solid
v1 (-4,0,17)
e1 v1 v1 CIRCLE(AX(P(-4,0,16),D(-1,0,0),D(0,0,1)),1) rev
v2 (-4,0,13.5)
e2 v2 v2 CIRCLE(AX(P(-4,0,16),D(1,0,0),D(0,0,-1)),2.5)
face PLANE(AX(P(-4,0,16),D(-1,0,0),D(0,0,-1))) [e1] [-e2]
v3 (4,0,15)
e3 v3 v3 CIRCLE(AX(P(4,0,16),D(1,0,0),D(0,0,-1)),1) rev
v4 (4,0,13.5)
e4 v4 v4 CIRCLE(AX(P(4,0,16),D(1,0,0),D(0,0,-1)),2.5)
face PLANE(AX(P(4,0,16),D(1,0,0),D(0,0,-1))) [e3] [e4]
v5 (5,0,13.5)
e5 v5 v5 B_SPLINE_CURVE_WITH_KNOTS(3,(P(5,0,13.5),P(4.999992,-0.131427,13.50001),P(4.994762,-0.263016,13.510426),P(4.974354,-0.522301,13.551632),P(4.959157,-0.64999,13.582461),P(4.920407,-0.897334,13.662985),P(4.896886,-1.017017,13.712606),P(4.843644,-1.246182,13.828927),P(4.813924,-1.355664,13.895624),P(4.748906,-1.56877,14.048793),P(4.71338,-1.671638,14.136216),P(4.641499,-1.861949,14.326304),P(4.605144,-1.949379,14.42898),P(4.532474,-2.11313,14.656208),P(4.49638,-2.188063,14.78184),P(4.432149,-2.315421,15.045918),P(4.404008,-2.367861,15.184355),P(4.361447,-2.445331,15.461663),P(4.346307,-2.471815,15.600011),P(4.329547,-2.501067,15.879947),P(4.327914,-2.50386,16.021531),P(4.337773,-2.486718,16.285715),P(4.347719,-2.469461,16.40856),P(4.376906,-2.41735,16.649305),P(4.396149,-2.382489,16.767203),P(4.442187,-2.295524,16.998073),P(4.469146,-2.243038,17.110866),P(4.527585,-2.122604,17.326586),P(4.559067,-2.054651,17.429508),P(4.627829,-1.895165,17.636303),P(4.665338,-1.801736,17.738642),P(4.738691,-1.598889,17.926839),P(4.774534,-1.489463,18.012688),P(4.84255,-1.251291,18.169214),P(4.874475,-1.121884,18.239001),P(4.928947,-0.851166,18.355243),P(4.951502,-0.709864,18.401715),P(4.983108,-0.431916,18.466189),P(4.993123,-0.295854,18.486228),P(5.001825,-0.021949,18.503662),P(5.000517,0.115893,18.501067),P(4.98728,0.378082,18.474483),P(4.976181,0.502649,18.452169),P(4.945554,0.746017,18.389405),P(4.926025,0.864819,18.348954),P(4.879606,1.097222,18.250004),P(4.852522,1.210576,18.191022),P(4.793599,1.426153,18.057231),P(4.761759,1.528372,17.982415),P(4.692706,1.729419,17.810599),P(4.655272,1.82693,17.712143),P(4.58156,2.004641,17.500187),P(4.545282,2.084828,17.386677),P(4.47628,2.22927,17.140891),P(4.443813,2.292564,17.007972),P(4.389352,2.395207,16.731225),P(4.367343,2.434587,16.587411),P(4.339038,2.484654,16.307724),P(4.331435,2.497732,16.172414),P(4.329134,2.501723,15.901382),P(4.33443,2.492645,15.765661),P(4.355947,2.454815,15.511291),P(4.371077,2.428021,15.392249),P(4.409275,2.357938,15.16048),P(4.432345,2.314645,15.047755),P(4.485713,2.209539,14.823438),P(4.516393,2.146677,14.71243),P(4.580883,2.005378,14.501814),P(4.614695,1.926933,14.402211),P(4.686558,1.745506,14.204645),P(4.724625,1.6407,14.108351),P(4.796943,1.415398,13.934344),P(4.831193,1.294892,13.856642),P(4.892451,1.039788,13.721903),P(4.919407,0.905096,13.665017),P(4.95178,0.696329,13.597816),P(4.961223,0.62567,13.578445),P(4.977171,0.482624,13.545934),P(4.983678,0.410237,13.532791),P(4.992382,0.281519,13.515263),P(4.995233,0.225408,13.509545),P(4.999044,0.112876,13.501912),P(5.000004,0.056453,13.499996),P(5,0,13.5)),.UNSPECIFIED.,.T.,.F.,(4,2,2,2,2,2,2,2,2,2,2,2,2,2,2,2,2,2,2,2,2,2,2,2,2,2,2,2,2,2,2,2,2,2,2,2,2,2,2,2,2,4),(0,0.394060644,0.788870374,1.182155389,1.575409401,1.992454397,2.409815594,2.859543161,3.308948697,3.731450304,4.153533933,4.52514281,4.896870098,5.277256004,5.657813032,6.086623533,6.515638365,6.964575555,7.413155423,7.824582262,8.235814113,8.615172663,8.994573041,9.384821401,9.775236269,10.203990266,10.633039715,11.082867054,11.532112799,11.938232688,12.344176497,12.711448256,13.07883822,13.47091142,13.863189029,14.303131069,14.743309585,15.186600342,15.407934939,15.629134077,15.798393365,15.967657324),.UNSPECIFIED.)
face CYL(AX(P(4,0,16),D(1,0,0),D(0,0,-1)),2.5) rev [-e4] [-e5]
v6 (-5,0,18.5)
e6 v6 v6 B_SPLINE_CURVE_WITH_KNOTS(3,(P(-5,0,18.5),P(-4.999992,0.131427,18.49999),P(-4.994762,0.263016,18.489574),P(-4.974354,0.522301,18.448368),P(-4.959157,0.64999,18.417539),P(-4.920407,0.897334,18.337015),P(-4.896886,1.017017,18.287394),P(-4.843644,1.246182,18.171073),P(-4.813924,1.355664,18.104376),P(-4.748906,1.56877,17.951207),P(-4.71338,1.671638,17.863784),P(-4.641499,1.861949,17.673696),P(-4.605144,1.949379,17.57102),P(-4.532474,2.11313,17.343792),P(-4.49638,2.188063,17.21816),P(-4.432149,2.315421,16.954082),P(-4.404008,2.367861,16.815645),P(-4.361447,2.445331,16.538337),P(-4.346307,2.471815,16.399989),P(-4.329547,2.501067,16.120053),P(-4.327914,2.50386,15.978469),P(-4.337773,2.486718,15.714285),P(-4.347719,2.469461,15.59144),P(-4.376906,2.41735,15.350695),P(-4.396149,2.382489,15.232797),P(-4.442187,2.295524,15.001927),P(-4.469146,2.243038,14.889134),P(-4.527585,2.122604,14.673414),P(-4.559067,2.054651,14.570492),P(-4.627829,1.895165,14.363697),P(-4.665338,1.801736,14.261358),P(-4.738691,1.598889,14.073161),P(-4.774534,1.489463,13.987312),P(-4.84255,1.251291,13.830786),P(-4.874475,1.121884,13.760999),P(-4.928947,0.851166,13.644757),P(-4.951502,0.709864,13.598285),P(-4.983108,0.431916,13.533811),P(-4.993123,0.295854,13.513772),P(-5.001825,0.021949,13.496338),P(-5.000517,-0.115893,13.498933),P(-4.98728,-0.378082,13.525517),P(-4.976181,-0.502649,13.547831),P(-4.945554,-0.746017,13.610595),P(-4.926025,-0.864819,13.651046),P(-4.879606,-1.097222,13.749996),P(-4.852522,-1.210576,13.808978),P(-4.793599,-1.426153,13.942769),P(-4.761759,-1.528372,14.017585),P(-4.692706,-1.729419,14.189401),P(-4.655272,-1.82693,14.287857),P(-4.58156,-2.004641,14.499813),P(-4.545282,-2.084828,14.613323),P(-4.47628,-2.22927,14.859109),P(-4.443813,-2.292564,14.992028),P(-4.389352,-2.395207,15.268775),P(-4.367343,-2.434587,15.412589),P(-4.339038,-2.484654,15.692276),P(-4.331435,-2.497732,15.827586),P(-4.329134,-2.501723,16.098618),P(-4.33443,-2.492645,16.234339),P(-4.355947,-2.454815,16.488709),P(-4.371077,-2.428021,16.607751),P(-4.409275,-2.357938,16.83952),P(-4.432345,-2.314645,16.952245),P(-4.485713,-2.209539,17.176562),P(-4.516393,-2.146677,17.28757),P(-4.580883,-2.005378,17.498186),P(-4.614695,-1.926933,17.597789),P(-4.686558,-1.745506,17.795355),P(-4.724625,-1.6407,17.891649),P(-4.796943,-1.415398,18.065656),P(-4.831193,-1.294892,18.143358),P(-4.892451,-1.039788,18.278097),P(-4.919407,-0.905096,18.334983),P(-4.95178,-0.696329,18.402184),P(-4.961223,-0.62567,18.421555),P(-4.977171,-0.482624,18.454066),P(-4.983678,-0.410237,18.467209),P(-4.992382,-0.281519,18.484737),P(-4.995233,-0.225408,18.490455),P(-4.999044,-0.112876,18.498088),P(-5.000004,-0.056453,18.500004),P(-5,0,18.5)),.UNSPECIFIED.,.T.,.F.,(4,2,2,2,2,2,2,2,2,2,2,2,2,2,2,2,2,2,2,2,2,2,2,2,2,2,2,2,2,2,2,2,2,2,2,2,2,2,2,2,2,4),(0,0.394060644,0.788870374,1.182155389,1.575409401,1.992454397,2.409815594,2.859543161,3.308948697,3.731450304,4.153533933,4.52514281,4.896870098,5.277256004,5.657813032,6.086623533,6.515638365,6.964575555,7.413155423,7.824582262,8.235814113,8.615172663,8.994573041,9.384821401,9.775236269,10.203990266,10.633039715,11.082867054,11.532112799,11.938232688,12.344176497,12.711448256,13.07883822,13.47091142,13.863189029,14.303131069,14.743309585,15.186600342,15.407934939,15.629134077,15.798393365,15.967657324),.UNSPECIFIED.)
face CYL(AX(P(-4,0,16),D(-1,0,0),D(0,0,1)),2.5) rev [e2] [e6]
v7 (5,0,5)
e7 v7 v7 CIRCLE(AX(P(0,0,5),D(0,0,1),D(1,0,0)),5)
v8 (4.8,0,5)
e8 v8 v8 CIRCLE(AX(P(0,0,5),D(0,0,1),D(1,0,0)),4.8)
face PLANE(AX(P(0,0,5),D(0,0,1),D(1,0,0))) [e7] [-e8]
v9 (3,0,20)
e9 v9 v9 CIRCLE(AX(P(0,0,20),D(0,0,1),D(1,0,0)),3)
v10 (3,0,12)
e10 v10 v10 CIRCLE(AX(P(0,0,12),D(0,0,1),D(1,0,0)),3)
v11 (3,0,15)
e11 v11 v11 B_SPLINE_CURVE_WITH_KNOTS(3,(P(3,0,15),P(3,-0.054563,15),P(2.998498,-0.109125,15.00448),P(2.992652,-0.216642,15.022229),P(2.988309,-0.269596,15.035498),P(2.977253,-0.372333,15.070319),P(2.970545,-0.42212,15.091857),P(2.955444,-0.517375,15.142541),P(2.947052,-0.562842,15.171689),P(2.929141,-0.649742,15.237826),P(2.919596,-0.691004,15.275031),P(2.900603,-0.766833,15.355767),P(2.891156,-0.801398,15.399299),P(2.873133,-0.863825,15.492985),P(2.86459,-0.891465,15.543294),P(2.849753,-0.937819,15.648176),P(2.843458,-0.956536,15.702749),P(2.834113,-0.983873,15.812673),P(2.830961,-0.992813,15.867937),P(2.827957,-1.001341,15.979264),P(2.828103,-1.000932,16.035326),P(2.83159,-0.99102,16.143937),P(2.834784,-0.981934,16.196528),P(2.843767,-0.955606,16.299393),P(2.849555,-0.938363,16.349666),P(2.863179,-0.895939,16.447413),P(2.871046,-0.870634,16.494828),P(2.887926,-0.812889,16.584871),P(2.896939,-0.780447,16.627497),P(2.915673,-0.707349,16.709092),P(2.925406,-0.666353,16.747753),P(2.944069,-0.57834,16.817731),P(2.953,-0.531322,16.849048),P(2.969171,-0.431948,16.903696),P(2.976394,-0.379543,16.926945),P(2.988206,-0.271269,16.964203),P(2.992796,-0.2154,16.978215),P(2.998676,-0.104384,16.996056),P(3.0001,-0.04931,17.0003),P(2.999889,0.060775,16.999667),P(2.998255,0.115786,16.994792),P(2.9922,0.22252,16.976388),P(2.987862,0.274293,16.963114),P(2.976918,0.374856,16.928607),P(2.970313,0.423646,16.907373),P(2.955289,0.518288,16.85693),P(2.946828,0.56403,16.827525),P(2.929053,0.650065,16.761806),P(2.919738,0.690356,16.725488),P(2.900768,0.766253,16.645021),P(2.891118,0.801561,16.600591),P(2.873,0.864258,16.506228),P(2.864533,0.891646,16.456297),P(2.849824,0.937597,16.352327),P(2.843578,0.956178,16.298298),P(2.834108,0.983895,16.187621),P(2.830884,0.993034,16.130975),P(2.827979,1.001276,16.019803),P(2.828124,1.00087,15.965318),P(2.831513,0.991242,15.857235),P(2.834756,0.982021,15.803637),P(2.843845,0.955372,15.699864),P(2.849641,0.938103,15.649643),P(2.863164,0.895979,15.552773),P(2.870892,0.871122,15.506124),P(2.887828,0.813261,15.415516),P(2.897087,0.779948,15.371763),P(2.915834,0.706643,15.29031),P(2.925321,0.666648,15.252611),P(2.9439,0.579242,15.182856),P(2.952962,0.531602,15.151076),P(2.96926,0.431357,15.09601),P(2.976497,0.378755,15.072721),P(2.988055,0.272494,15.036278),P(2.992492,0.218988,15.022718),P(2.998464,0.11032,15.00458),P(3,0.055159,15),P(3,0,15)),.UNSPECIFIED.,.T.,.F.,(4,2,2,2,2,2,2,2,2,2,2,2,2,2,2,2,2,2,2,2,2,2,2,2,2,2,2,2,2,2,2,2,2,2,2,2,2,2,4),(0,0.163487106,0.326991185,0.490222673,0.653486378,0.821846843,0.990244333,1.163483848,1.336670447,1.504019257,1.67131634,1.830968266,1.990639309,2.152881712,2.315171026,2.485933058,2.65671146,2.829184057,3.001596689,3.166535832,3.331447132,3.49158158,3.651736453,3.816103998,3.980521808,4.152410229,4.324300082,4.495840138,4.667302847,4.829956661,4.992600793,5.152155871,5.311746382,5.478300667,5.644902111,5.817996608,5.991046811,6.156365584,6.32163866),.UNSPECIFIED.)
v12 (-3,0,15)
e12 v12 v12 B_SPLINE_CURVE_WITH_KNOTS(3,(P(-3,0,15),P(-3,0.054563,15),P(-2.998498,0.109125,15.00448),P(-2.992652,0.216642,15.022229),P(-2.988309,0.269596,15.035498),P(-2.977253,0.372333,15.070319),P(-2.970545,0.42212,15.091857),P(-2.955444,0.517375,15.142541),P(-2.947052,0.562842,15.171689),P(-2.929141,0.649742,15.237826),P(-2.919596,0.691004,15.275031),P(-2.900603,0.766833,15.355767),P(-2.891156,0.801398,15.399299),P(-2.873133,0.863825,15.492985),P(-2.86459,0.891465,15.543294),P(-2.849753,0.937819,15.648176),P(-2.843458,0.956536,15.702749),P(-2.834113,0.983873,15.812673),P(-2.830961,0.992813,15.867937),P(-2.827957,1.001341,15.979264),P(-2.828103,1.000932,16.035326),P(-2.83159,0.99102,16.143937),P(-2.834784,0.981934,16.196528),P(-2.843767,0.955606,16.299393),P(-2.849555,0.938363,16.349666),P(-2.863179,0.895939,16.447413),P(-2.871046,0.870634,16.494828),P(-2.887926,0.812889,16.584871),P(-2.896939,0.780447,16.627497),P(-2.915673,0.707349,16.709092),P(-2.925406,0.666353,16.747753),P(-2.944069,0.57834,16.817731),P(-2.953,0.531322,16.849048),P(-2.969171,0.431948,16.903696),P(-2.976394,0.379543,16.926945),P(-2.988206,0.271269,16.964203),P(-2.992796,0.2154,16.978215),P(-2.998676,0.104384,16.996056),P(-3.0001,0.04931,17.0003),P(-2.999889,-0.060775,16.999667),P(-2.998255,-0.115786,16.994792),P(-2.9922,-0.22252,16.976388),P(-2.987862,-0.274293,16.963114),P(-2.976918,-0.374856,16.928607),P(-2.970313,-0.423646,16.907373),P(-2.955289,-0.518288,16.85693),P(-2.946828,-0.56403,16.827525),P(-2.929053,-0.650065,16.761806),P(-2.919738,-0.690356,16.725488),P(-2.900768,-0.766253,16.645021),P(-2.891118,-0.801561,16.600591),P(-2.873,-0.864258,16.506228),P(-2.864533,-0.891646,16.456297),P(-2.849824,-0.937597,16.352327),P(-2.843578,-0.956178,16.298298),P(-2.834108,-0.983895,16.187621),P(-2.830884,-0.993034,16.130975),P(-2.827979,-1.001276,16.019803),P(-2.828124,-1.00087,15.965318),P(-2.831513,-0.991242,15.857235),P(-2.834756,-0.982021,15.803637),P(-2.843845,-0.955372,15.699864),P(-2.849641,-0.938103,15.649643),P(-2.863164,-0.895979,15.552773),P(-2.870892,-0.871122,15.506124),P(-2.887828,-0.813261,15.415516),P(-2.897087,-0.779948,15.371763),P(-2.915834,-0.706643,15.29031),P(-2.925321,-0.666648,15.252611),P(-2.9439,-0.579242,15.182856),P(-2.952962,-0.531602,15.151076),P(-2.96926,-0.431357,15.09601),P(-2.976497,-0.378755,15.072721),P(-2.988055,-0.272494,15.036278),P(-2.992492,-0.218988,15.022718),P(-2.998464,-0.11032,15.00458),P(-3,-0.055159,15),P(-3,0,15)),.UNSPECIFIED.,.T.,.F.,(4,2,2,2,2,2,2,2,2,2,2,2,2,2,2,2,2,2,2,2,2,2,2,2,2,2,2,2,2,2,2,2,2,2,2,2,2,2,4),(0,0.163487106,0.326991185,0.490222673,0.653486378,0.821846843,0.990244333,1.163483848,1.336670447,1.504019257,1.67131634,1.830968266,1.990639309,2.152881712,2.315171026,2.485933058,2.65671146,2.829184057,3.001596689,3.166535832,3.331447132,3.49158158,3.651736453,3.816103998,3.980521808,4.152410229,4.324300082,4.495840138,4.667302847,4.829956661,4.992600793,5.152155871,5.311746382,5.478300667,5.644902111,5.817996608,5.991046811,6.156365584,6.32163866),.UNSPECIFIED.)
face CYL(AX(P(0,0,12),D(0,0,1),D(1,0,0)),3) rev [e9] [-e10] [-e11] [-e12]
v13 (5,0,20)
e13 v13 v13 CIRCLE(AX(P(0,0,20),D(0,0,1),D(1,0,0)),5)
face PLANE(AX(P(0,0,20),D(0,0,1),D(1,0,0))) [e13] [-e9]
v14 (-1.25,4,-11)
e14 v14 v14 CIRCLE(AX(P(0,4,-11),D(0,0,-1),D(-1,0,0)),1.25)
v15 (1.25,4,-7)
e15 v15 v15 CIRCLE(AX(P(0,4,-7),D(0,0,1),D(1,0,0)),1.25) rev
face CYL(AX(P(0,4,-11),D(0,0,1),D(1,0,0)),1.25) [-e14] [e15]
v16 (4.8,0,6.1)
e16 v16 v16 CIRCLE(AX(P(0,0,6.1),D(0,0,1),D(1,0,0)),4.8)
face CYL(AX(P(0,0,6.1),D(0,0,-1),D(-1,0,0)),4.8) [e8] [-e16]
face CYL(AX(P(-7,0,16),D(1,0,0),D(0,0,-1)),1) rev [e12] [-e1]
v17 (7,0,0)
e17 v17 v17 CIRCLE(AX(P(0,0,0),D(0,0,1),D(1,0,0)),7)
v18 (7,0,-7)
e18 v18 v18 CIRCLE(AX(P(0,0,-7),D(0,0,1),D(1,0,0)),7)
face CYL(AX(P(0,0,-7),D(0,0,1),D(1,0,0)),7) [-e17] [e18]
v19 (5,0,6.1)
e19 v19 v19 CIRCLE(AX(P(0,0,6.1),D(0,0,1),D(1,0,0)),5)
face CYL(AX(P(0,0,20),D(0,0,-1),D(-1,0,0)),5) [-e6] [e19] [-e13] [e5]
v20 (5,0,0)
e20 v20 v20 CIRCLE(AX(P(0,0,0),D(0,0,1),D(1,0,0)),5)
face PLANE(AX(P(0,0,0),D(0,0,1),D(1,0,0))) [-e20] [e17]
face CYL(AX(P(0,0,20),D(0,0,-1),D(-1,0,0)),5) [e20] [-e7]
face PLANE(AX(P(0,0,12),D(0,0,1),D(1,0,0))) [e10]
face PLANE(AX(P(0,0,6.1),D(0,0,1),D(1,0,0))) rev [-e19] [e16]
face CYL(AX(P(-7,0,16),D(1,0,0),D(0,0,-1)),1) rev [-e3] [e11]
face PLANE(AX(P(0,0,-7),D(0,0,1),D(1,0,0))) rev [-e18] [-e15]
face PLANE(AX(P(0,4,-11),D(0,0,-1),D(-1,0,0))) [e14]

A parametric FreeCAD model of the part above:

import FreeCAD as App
import Part
import Sketcher
from FreeCAD import Vector

doc = App.newDocument("Part")
body = doc.addObject("PartDesign::Body", "Body")

sketch1 = body.newObject("Sketcher::SketchObject", "Sketch")
sketch1.AttachmentSupport = (doc.getObject("XY_Plane"), [""])
sketch1.MapMode = "FlatFace"
sketch1.addGeometry(Part.Circle(Vector(0, 0, 0), Vector(0, 0, 1), 7), False)
sketch1.addConstraint(Sketcher.Constraint("Coincident", 0, 3, -1, 1))
sketch1.addConstraint(Sketcher.Constraint("Diameter", 0, 14.0))
pad1 = body.newObject("PartDesign::Pad", "Pad")
pad1.Profile = sketch1
pad1.Length = 7
pad1.Reversed = True

sketch2 = body.newObject("Sketcher::SketchObject", "Sketch001")
sketch2.AttachmentSupport = (doc.getObject("XY_Plane"), [""])
sketch2.MapMode = "FlatFace"
sketch2.addGeometry(Part.Circle(Vector(0, 0, 0), Vector(0, 0, 1), 5), False)
sketch2.addConstraint(Sketcher.Constraint("Coincident", 0, 3, -1, 1))
sketch2.addConstraint(Sketcher.Constraint("Diameter", 0, 10.0))
pad2 = body.newObject("PartDesign::Pad", "Pad001")
pad2.Profile = sketch2
pad2.Length = 20

sketch3 = body.newObject("Sketcher::SketchObject", "Sketch002")
sketch3.AttachmentSupport = (doc.getObject("XY_Plane"), [""])
sketch3.MapMode = "FlatFace"
sketch3.AttachmentOffset = App.Placement(Vector(0, 0, 5), App.Rotation())
sketch3.addGeometry(Part.Circle(Vector(0, 0, 0), Vector(0, 0, 1), 6), False)
sketch3.addGeometry(Part.Circle(Vector(0, 0, 0), Vector(0, 0, 1), 4.8), False)
sketch3.addConstraint(Sketcher.Constraint("Coincident", 0, 3, -1, 1))
sketch3.addConstraint(Sketcher.Constraint("Coincident", 1, 3, -1, 1))
sketch3.addConstraint(Sketcher.Constraint("Diameter", 0, 12.0))
sketch3.addConstraint(Sketcher.Constraint("Diameter", 1, 9.6))
pocket1 = body.newObject("PartDesign::Pocket", "Pocket")
pocket1.Profile = sketch3
pocket1.Length = 1.1
pocket1.Reversed = True

sketch4 = body.newObject("Sketcher::SketchObject", "Sketch003")
sketch4.AttachmentSupport = (doc.getObject("XY_Plane"), [""])
sketch4.MapMode = "FlatFace"
sketch4.AttachmentOffset = App.Placement(Vector(0, 0, -7), App.Rotation())
sketch4.addGeometry(Part.Circle(Vector(0, 4, 0), Vector(0, 0, 1), 1.25), False)
sketch4.addConstraint(Sketcher.Constraint("PointOnObject", 0, 3, -2))
sketch4.addConstraint(Sketcher.Constraint("Diameter", 0, 2.5))
sketch4.addConstraint(Sketcher.Constraint("DistanceY", -1, 1, 0, 3, 4.0))
pad3 = body.newObject("PartDesign::Pad", "Pad002")
pad3.Profile = sketch4
pad3.Length = 4
pad3.Reversed = True

sketch5 = body.newObject("Sketcher::SketchObject", "Sketch004")
sketch5.AttachmentSupport = (doc.getObject("YZ_Plane"), [""])
sketch5.MapMode = "FlatFace"
sketch5.AttachmentOffset = App.Placement(Vector(0, 0, 5), App.Rotation())
sketch5.addGeometry(Part.Circle(Vector(0, 16, 0), Vector(0, 0, 1), 1), False)
sketch5.addConstraint(Sketcher.Constraint("PointOnObject", 0, 3, -2))
sketch5.addConstraint(Sketcher.Constraint("Diameter", 0, 2.0))
sketch5.addConstraint(Sketcher.Constraint("DistanceY", -1, 1, 0, 3, 16.0))
pocket2 = body.newObject("PartDesign::Pocket", "Pocket001")
pocket2.Profile = sketch5
pocket2.Type = "ThroughAll"

sketch6 = body.newObject("Sketcher::SketchObject", "Sketch005")
sketch6.AttachmentSupport = (doc.getObject("YZ_Plane"), [""])
sketch6.MapMode = "FlatFace"
sketch6.AttachmentOffset = App.Placement(Vector(0, 0, 5), App.Rotation())
sketch6.addGeometry(Part.Circle(Vector(0, 16, 0), Vector(0, 0, 1), 2.5), False)
sketch6.addConstraint(Sketcher.Constraint("PointOnObject", 0, 3, -2))
sketch6.addConstraint(Sketcher.Constraint("Diameter", 0, 5.0))
sketch6.addConstraint(Sketcher.Constraint("DistanceY", -1, 1, 0, 3, 16.0))
pocket3 = body.newObject("PartDesign::Pocket", "Pocket002")
pocket3.Profile = sketch6
pocket3.Length = 1
doc.recompute()

mirrored = body.newObject("PartDesign::Mirrored", "Mirrored")
mirrored.Originals = [pocket3]
mirrored.MirrorPlane = (doc.getObject("YZ_Plane"), [""])
body.Tip = mirrored

sketch7 = body.newObject("Sketcher::SketchObject", "Sketch006")
sketch7.AttachmentSupport = (doc.getObject("XY_Plane"), [""])
sketch7.MapMode = "FlatFace"
sketch7.AttachmentOffset = App.Placement(Vector(0, 0, 20), App.Rotation())
sketch7.addGeometry(Part.Circle(Vector(0, 0, 0), Vector(0, 0, 1), 3), False)
sketch7.addConstraint(Sketcher.Constraint("Coincident", 0, 3, -1, 1))
sketch7.addConstraint(Sketcher.Constraint("Diameter", 0, 6.0))
pocket4 = body.newObject("PartDesign::Pocket", "Pocket003")
pocket4.Profile = sketch7
pocket4.Length = 8

doc.recompute()
